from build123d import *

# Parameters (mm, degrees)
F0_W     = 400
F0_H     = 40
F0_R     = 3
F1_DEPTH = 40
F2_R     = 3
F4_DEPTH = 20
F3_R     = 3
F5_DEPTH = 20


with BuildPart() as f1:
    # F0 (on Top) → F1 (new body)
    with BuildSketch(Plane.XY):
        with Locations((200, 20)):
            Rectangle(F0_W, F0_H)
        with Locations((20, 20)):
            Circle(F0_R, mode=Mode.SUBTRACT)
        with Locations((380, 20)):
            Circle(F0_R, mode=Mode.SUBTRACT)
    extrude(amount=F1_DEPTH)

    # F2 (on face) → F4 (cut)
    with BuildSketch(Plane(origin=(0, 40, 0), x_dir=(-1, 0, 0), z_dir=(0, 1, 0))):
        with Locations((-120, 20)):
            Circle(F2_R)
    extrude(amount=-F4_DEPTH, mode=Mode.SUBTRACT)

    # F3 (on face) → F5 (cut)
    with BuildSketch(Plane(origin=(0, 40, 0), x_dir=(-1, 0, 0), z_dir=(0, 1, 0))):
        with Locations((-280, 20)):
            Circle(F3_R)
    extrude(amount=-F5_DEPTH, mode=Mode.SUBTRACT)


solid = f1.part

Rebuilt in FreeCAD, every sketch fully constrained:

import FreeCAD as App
import Part
import Sketcher

V = App.Vector
Q = App.Units.Quantity


def add_polygon(sketch, points):
    """Adds a closed chain of lines whose ends are joined by coincident constraints."""
    first, n = sketch.GeometryCount, len(points)
    for a, b in zip(points, points[1:] + points[:1]):
        sketch.addGeometry(Part.LineSegment(App.Vector(*a, 0), App.Vector(*b, 0)), False)
    for i in range(n):
        sketch.addConstraint(Sketcher.Constraint("Coincident", first + i, 2, first + (i + 1) % n, 1))

doc = App.newDocument("Part")
body = doc.addObject("PartDesign::Body", "Body")

sketch1 = doc.addObject("Sketcher::SketchObject", "Sketch")
body.addObject(sketch1)
sketch1.AttachmentSupport = (doc.XY_Plane, [""])
sketch1.MapMode = "FlatFace"
add_polygon(sketch1, [(0, 40), (0, 0), (400, 0), (400, 40)])
sketch1.addGeometry(Part.Circle(V(20, 20, 0), V(0, 0, 1), 3), False)
sketch1.addGeometry(Part.Circle(V(380, 20, 0), V(0, 0, 1), 3), False)
sketch1.addConstraint([
    Sketcher.Constraint("Vertical", 0),
    Sketcher.Constraint("Horizontal", 1),
    Sketcher.Constraint("Vertical", 2),
    Sketcher.Constraint("Horizontal", 3),
    Sketcher.Constraint("Coincident", 0, 2, -1, 1),
    Sketcher.Constraint("Equal", 4, 5),
    Sketcher.Constraint("Horizontal", 4, 3, 5, 3),
    Sketcher.Constraint("Diameter", 4, Q("6 mm")),
    Sketcher.Constraint("DistanceX", 1, 1, 1, 2, Q("400 mm")),
    Sketcher.Constraint("DistanceY", 0, 2, 0, 1, Q("40 mm")),
    Sketcher.Constraint("DistanceX", -1, 1, 4, 3, Q("20 mm")),
    Sketcher.Constraint("DistanceY", -1, 1, 4, 3, Q("20 mm")),
    Sketcher.Constraint("DistanceX", -1, 1, 5, 3, Q("380 mm")),
])
pad1 = doc.addObject("PartDesign::Pad", "Pad")
body.addObject(pad1)
pad1.Profile = sketch1
pad1.Length = 40

sketch2 = doc.addObject("Sketcher::SketchObject", "Sketch001")
body.addObject(sketch2)
sketch2.AttachmentSupport = (doc.XZ_Plane, [""])
sketch2.MapMode = "FlatFace"
sketch2.AttachmentOffset = App.Placement(V(0, 0, -40), App.Rotation())
sketch2.addGeometry(Part.Circle(V(120, 20, 0), V(0, 0, 1), 3), False)
sketch2.addConstraint([
    Sketcher.Constraint("Diameter", 0, Q("6 mm")),
    Sketcher.Constraint("DistanceX", -1, 1, 0, 3, Q("120 mm")),
    Sketcher.Constraint("DistanceY", -1, 1, 0, 3, Q("20 mm")),
])
pocket1 = doc.addObject("PartDesign::Pocket", "Pocket")
body.addObject(pocket1)
pocket1.Profile = sketch2
pocket1.Length = 20
pocket1.Reversed = True

sketch3 = doc.addObject("Sketcher::SketchObject", "Sketch002")
body.addObject(sketch3)
sketch3.AttachmentSupport = (doc.XZ_Plane, [""])
sketch3.MapMode = "FlatFace"
sketch3.AttachmentOffset = App.Placement(V(0, 0, -40), App.Rotation())
sketch3.addGeometry(Part.Circle(V(280, 20, 0), V(0, 0, 1), 3), False)
sketch3.addConstraint([
    Sketcher.Constraint("Diameter", 0, Q("6 mm")),
    Sketcher.Constraint("DistanceX", -1, 1, 0, 3, Q("280 mm")),
    Sketcher.Constraint("DistanceY", -1, 1, 0, 3, Q("20 mm")),
])
pocket2 = doc.addObject("PartDesign::Pocket", "Pocket001")
body.addObject(pocket2)
pocket2.Profile = sketch3
pocket2.Length = 20
pocket2.Reversed = True

doc.recompute()
